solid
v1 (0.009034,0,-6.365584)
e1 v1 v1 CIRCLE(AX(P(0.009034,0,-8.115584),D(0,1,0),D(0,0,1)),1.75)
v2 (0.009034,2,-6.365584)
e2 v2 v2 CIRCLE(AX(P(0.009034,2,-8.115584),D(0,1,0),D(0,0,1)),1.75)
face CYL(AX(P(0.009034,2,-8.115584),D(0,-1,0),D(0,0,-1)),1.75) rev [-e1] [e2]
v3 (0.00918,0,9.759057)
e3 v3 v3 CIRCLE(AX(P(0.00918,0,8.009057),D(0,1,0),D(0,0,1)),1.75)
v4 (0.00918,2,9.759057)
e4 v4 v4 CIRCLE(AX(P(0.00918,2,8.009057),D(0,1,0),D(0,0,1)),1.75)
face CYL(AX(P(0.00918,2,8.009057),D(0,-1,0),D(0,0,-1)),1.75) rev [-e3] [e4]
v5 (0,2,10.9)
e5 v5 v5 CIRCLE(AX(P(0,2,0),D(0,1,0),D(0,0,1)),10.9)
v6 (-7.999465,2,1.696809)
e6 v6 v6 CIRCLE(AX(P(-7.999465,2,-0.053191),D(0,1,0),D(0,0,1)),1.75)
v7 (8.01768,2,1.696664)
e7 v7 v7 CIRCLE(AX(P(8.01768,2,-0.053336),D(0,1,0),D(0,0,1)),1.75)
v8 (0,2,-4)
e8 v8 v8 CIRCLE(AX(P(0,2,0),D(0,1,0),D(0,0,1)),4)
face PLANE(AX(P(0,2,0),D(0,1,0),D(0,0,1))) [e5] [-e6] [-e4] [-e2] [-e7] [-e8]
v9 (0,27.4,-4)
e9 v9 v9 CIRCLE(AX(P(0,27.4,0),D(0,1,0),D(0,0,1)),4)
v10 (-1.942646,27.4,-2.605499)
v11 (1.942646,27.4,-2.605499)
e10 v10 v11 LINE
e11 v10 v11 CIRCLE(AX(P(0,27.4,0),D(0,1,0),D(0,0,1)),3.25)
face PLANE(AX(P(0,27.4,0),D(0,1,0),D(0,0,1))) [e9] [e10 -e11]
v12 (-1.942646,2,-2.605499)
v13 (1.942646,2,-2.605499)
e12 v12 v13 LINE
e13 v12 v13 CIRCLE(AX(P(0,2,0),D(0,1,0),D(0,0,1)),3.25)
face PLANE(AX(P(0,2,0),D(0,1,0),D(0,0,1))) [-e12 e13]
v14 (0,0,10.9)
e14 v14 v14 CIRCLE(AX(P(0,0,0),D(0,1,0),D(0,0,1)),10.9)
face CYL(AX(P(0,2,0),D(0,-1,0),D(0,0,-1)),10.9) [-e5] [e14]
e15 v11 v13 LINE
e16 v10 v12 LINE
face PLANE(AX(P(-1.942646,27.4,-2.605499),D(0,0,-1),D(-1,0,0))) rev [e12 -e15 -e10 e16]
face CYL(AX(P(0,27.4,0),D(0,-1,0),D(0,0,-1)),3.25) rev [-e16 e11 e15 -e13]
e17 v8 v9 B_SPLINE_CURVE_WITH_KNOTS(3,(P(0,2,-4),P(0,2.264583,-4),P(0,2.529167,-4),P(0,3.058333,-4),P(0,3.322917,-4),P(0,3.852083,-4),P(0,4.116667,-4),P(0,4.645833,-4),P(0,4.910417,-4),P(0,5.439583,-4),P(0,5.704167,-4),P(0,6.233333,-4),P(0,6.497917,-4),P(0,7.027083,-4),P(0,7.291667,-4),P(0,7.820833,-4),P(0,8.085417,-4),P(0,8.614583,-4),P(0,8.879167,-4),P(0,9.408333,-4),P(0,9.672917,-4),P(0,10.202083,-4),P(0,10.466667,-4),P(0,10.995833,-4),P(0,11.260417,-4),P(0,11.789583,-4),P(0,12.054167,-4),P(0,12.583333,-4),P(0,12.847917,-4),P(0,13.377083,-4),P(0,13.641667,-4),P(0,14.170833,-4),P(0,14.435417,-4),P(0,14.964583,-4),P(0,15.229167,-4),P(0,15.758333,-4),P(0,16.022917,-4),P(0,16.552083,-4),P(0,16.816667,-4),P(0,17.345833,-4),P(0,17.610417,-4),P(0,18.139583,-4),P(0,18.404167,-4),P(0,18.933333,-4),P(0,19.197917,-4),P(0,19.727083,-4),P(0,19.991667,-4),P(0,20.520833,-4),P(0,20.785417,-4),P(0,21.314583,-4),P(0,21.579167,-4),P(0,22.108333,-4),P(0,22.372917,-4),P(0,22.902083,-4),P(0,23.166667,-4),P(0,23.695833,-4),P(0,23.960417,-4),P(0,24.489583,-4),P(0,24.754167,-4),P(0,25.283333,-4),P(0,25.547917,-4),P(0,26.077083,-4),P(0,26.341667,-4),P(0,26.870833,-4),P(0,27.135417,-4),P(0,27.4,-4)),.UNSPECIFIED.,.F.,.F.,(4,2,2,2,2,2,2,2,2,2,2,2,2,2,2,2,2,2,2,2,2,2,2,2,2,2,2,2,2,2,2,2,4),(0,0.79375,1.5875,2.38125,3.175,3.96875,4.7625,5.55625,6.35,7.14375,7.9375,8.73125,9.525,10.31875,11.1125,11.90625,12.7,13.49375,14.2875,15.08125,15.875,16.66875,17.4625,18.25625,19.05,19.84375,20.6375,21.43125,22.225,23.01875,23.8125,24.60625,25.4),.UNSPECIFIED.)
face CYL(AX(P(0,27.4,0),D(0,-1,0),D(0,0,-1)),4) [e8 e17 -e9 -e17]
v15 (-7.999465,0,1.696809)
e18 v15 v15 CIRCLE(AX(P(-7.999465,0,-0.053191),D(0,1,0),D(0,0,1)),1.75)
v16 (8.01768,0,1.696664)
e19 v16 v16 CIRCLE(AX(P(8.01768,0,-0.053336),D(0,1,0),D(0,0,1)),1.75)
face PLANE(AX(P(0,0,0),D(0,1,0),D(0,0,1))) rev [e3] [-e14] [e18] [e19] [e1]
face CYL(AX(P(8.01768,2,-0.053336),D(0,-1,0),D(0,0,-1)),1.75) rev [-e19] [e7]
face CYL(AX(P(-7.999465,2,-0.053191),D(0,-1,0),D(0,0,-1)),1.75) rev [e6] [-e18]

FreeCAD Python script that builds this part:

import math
import FreeCAD as App
import Part
import Sketcher

V = App.Vector

doc = App.newDocument("Part")
body = doc.addObject("PartDesign::Body", "Body")

# Sketch on XZ plane
sketch1 = body.newObject("Sketcher::SketchObject", "Sketch")
sketch1.AttachmentSupport = (doc.getObject("XZ_Plane"), [""])
sketch1.MapMode = "FlatFace"
sketch1.addGeometry([
    Part.Circle(V(0, 0, 0), V(0, 0, 1), 4),
    Part.ArcOfCircle(Part.Circle(V(0, 0, 0), V(0, 0, 1), 3.25), math.radians(-53.291995), math.radians(233.291995)),
    Part.LineSegment(V(-1.942646, -2.605499, 0), V(1.942646, -2.605499, 0)),
], False)
sketch1.addConstraint([
    Sketcher.Constraint("Coincident", 1, 1, 2, 2),
    Sketcher.Constraint("Coincident", 2, 1, 1, 2),
    Sketcher.Constraint("Horizontal", 2),
    Sketcher.Constraint("Coincident", 0, 3, -1, 1),
    Sketcher.Constraint("Coincident", 1, 3, -1, 1),
    Sketcher.Constraint("Diameter", 0, 8.0),
    Sketcher.Constraint("Radius", 1, 3.25),
    Sketcher.Constraint("DistanceX", 2, 1, 2, 2, 3.885292),
])
pad1 = body.newObject("PartDesign::Pad", "Pad")
pad1.Profile = sketch1
pad1.Length = 27.4
pad1.Reversed = True

# Sketch on XZ plane
sketch2 = body.newObject("Sketcher::SketchObject", "Sketch001")
sketch2.AttachmentSupport = (doc.getObject("XZ_Plane"), [""])
sketch2.MapMode = "FlatFace"
sketch2.addGeometry([
    Part.Circle(V(0, 0, 0), V(0, 0, 1), 10.9),  # 0
    Part.Circle(V(0.009034, -8.115584, 0), V(0, 0, 1), 1.75),  # 1
    Part.Circle(V(-7.999465, -0.053191, 0), V(0, 0, 1), 1.75),  # 2
    Part.Circle(V(8.01768, -0.053336, 0), V(0, 0, 1), 1.75),  # 3
    Part.Circle(V(0.00918, 8.009057, 0), V(0, 0, 1), 1.75),  # 4
], False)
sketch2.addConstraint([
    Sketcher.Constraint("Coincident", 0, 3, -1, 1),
    Sketcher.Constraint("Equal", 1, 2),
    Sketcher.Constraint("Equal", 2, 3),
    Sketcher.Constraint("Equal", 3, 4),
    Sketcher.Constraint("Diameter", 0, 21.8),
    Sketcher.Constraint("Diameter", 1, 3.5),
    Sketcher.Constraint("DistanceX", 2, 3, 1, 3, 8.0085),
    Sketcher.Constraint("DistanceX", 4, 3, 3, 3, 8.0085),
    Sketcher.Constraint("DistanceY", 2, 3, -1, 1, 0.053191),
    Sketcher.Constraint("DistanceX", -1, 1, 3, 3, 8.01768),
    Sketcher.Constraint("DistanceY", 1, 3, 3, 3, 8.062248),
    Sketcher.Constraint("DistanceY", 2, 3, 4, 3, 8.062248),
    Sketcher.Constraint("DistanceY", 1, 3, 4, 3, 16.124641),
    Sketcher.Constraint("DistanceX", -1, 1, 1, 3, 0.009034),
])
pad2 = body.newObject("PartDesign::Pad", "Pad001")
pad2.Profile = sketch2
pad2.Length = 2
pad2.Reversed = True

doc.recompute()
